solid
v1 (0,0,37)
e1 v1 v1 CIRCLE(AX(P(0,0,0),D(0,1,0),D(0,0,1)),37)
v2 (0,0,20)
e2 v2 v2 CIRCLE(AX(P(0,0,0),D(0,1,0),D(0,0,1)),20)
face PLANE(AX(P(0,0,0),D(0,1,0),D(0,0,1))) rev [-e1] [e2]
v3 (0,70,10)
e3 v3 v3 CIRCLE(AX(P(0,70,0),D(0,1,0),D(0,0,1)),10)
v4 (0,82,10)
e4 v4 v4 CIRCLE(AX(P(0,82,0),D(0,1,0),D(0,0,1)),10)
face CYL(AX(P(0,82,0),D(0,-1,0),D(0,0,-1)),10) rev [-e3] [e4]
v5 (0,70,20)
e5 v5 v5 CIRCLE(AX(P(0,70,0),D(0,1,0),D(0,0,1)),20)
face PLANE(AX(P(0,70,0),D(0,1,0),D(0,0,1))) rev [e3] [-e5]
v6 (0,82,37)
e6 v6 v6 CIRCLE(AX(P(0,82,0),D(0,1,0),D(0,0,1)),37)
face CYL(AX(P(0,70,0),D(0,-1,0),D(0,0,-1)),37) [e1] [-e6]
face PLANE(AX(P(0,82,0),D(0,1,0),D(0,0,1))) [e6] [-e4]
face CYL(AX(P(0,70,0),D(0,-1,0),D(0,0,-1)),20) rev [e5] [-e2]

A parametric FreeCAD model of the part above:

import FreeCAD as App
import Part
import Sketcher
from FreeCAD import Vector
Q = App.Units.Quantity

doc = App.newDocument("Part")
body = doc.addObject("PartDesign::Body", "Body")

# Sketch on XZ plane
sketch1 = doc.addObject("Sketcher::SketchObject", "Sketch")
body.addObject(sketch1)
sketch1.AttachmentSupport = (doc.XZ_Plane, [""])
sketch1.MapMode = "FlatFace"
sketch1.addGeometry([
    Part.Circle(Vector(0, 0, 0), Vector(0, 0, 1), 37),
    Part.Circle(Vector(0, 0, 0), Vector(0, 0, 1), 20),
], False)
sketch1.addConstraint([
    Sketcher.Constraint("Coincident", 0, 3, -1, 1),
    Sketcher.Constraint("Coincident", 1, 3, -1, 1),
    Sketcher.Constraint("Diameter", 0, Q("74 mm")),
    Sketcher.Constraint("Diameter", 1, Q("40 mm")),
])
pad1 = doc.addObject("PartDesign::Pad", "Pad")
body.addObject(pad1)
pad1.Profile = sketch1
pad1.Length = 70
pad1.Reversed = True

# Sketch on XZ plane
sketch2 = doc.addObject("Sketcher::SketchObject", "Sketch001")
body.addObject(sketch2)
sketch2.AttachmentSupport = (doc.XZ_Plane, [""])
sketch2.MapMode = "FlatFace"
sketch2.AttachmentOffset = App.Placement(Vector(0, 0, -70), App.Rotation())
sketch2.addGeometry([
    Part.Circle(Vector(0, 0, 0), Vector(0, 0, 1), 37),
    Part.Circle(Vector(0, 0, 0), Vector(0, 0, 1), 10),
], False)
sketch2.addConstraint([
    Sketcher.Constraint("Coincident", 0, 3, -1, 1),
    Sketcher.Constraint("Coincident", 1, 3, -1, 1),
    Sketcher.Constraint("Diameter", 0, Q("74 mm")),
    Sketcher.Constraint("Diameter", 1, Q("20 mm")),
])
pad2 = doc.addObject("PartDesign::Pad", "Pad001")
body.addObject(pad2)
pad2.Profile = sketch2
pad2.Length = 12
pad2.Reversed = True

doc.recompute()
